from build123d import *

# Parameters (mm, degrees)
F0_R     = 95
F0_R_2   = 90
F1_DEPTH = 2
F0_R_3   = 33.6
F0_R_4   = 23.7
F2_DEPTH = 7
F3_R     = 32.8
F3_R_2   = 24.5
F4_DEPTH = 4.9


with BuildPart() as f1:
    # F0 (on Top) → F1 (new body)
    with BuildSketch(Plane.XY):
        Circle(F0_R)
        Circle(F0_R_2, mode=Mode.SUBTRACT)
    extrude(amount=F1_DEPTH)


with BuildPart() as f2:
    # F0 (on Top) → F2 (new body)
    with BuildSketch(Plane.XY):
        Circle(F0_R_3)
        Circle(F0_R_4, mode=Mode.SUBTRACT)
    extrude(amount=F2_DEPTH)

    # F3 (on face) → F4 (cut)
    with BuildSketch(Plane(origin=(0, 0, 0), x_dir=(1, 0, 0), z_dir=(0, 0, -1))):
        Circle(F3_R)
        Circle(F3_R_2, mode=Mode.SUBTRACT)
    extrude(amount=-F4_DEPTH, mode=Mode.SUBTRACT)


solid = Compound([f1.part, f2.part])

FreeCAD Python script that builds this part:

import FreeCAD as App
import Part
import Sketcher

doc = App.newDocument("Part")
params = doc.addObject("Spreadsheet::Sheet", "Params")
for row, (alias, value) in enumerate([
    ("sketch1_diameter", "190 mm"),
    ("sketch1_diameter2", "180 mm"),
    ("pad1_length", "2 mm"),
    ("sketch2_diameter", "67.2 mm"),
    ("sketch2_diameter2", "47.4 mm"),
    ("pad2_length", "7 mm"),
    ("sketch3_diameter", "49 mm"),
    ("sketch3_diameter2", "65.6 mm"),
    ("pocket1_length", "4.9 mm"),
], start=1):
    params.set(f"A{row}", alias)
    params.set(f"B{row}", "=" + value)
    params.setAlias(f"B{row}", alias)

body = doc.addObject("PartDesign::Body", "Body")

# Sketch on XY plane
sketch1 = body.newObject("Sketcher::SketchObject", "Sketch")
sketch1.AttachmentSupport = (doc.getObject("XY_Plane"), [""])
sketch1.MapMode = "FlatFace"
sketch1.addGeometry(Part.Circle(App.Vector(0, 0, 0), App.Vector(0, 0, 1), 95), False)
sketch1.addGeometry(Part.Circle(App.Vector(0, 0, 0), App.Vector(0, 0, 1), 90), False)
sketch1.addConstraint(Sketcher.Constraint("Coincident", 0, 3, -1, 1))
sketch1.addConstraint(Sketcher.Constraint("Coincident", 1, 3, -1, 1))
sketch1.addConstraint(Sketcher.Constraint("Diameter", 0, 190.0))
sketch1.addConstraint(Sketcher.Constraint("Diameter", 1, 180.0))
sketch1.setExpression("Constraints[2]", "Params.sketch1_diameter")
sketch1.setExpression("Constraints[3]", "Params.sketch1_diameter2")
pad1 = body.newObject("PartDesign::Pad", "Pad")
pad1.Profile = sketch1
pad1.setExpression("Length", "Params.pad1_length")
body2 = doc.addObject("PartDesign::Body", "Body001")

# Sketch on XY plane
sketch2 = body2.newObject("Sketcher::SketchObject", "Sketch001")
sketch2.AttachmentSupport = (doc.getObject("XY_Plane001"), [""])
sketch2.MapMode = "FlatFace"
sketch2.addGeometry(Part.Circle(App.Vector(0, 0, 0), App.Vector(0, 0, 1), 34), False)
sketch2.addGeometry(Part.Circle(App.Vector(0, 0, 0), App.Vector(0, 0, 1), 24), False)
sketch2.addConstraint(Sketcher.Constraint("Coincident", 0, 3, -1, 1))
sketch2.addConstraint(Sketcher.Constraint("Coincident", 1, 3, -1, 1))
sketch2.addConstraint(Sketcher.Constraint("Diameter", 0, 67.2))
sketch2.addConstraint(Sketcher.Constraint("Diameter", 1, 47.4))
sketch2.setExpression("Constraints[2]", "Params.sketch2_diameter")
sketch2.setExpression("Constraints[3]", "Params.sketch2_diameter2")
pad2 = body2.newObject("PartDesign::Pad", "Pad001")
pad2.Profile = sketch2
pad2.setExpression("Length", "Params.pad2_length")

# Sketch on XY plane
sketch3 = body2.newObject("Sketcher::SketchObject", "Sketch002")
sketch3.AttachmentSupport = (doc.getObject("XY_Plane001"), [""])
sketch3.MapMode = "FlatFace"
sketch3.addGeometry(Part.Circle(App.Vector(0, 0, 0), App.Vector(0, 0, 1), 33), False)
sketch3.addGeometry(Part.Circle(App.Vector(0, 0, 0), App.Vector(0, 0, 1), 24), False)
sketch3.addConstraint(Sketcher.Constraint("Coincident", 0, 3, -1, 1))
sketch3.addConstraint(Sketcher.Constraint("Coincident", 1, 3, -1, 1))
sketch3.addConstraint(Sketcher.Constraint("Diameter", 1, 49.0))
sketch3.addConstraint(Sketcher.Constraint("Diameter", 0, 65.6))
sketch3.setExpression("Constraints[2]", "Params.sketch3_diameter")
sketch3.setExpression("Constraints[3]", "Params.sketch3_diameter2")
pocket1 = body2.newObject("PartDesign::Pocket", "Pocket")
pocket1.Profile = sketch3
pocket1.setExpression("Length", "Params.pocket1_length")
pocket1.Reversed = True

doc.recompute()
